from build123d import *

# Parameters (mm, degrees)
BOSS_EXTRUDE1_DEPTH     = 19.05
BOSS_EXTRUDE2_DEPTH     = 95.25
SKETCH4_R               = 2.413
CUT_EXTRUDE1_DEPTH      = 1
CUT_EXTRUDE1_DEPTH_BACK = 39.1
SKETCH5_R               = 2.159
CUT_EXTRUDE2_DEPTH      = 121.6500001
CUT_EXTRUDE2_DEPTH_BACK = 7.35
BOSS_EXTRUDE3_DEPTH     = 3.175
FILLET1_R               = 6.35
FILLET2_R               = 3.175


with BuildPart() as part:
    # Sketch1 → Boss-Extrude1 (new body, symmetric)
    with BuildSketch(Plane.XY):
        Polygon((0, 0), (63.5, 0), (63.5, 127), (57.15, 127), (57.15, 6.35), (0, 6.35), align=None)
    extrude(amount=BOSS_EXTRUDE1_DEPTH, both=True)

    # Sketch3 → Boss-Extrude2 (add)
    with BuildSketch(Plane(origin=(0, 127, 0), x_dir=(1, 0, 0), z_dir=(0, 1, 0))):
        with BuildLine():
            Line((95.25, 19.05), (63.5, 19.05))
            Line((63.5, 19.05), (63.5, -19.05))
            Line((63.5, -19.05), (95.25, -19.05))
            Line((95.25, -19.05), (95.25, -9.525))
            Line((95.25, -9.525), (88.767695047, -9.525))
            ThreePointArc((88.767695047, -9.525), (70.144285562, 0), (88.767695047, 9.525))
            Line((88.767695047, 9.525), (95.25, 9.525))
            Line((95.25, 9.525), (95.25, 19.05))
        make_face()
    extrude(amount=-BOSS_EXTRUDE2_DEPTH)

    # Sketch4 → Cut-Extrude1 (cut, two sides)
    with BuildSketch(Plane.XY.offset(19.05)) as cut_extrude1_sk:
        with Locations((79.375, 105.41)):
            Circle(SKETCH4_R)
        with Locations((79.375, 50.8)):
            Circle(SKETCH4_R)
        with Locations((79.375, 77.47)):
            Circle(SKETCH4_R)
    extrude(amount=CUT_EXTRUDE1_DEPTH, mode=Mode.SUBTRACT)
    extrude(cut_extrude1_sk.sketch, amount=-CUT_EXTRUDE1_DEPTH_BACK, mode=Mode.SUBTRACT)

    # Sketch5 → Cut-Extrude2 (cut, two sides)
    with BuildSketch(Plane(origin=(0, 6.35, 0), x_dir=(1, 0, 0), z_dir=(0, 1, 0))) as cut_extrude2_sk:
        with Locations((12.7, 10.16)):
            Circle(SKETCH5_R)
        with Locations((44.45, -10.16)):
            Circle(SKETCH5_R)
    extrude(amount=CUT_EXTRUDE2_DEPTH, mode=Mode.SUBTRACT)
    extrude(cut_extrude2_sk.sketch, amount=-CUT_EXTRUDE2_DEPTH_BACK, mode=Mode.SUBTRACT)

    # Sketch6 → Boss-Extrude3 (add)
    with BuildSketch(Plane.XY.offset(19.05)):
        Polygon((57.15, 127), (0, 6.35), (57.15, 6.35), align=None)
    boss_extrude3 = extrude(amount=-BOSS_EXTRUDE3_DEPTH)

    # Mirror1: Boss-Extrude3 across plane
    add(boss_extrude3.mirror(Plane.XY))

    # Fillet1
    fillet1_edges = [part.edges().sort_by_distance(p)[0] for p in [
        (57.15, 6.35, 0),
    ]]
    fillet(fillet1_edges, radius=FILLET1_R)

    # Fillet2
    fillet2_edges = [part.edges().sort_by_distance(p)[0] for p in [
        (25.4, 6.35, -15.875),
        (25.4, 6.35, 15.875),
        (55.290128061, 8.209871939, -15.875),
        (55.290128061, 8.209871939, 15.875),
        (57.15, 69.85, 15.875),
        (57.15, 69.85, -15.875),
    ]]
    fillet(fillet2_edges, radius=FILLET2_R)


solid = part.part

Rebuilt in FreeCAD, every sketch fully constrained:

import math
import FreeCAD as App
import Part
import Sketcher
Q = App.Units.Quantity


def edges_at(feature, points):
    """Names of the edges that pass closest to the given points."""
    edges = feature.Shape.Edges
    near = lambda p: min(range(len(edges)), key=lambda i: edges[i].distToShape(Part.Vertex(*p))[0])
    return sorted({f"Edge{near(p) + 1}" for p in points})


def add_polygon(sketch, points):
    """Adds a closed chain of lines whose ends are joined by coincident constraints."""
    first, n = sketch.GeometryCount, len(points)
    for a, b in zip(points, points[1:] + points[:1]):
        sketch.addGeometry(Part.LineSegment(App.Vector(*a, 0), App.Vector(*b, 0)), False)
    for i in range(n):
        sketch.addConstraint(Sketcher.Constraint("Coincident", first + i, 2, first + (i + 1) % n, 1))

doc = App.newDocument("Part")
params = doc.addObject("Spreadsheet::Sheet", "Params")
for row, (alias, value) in enumerate([
    ("sketch1_height", "5 in"),
    ("sketch1_width", "2.5 in"),
    ("sketch1_width2", "0.25 in"),
    ("pad1_length", "1.5 in"),
    ("sketch2_height", "1.5 in"),
    ("sketch2_width", "1.25 in"),
    ("sketch2_height2", "0.375 in"),
    ("pad2_length", "3.75 in"),
    ("sketch3_diameter", "0.19 in"),
    ("sketch4_diameter", "0.17 in"),
    ("sketch5_width", "2.25 in"),
    ("sketch5_height", "4.75 in"),
    ("pad3_length", "0.125 in"),
    ("fillet_radius", "0.25 in"),
    ("fillet2_radius", "0.125 in"),
], start=1):
    params.set(f"A{row}", alias)
    params.set(f"B{row}", "=" + value)
    params.setAlias(f"B{row}", alias)

body = doc.addObject("PartDesign::Body", "Body")

sketch1 = body.newObject("Sketcher::SketchObject", "Sketch")
sketch1.AttachmentSupport = (doc.getObject("XY_Plane"), [""])
sketch1.MapMode = "FlatFace"
add_polygon(sketch1, [(0, 0), (64, 0), (64, 127), (57, 127), (57, 6), (0, 6)])
sketch1.addConstraint(Sketcher.Constraint("Horizontal", 0))
sketch1.addConstraint(Sketcher.Constraint("Vertical", 1))
sketch1.addConstraint(Sketcher.Constraint("Horizontal", 2))
sketch1.addConstraint(Sketcher.Constraint("Vertical", 3))
sketch1.addConstraint(Sketcher.Constraint("Horizontal", 4))
sketch1.addConstraint(Sketcher.Constraint("Vertical", 5))
sketch1.addConstraint(Sketcher.Constraint("Coincident", 5, 2, -1, 1))
sketch1.addConstraint(Sketcher.Constraint("Equal", 2, 5))
sketch1.addConstraint(Sketcher.Constraint("DistanceY", 1, 1, 1, 2, Q("5 in")))
sketch1.addConstraint(Sketcher.Constraint("DistanceX", 0, 1, 0, 2, Q("2.5 in")))
sketch1.addConstraint(Sketcher.Constraint("DistanceX", 2, 2, 2, 1, Q("0.25 in")))
sketch1.setExpression("Constraints[14]", "Params.sketch1_height")
sketch1.setExpression("Constraints[15]", "Params.sketch1_width")
sketch1.setExpression("Constraints[16]", "Params.sketch1_width2")
pad1 = body.newObject("PartDesign::Pad", "Pad")
pad1.Profile = sketch1
pad1.setExpression("Length", "Params.pad1_length")
pad1.Midplane = True

sketch2 = body.newObject("Sketcher::SketchObject", "Sketch001")
sketch2.AttachmentSupport = (doc.getObject("XZ_Plane"), [""])
sketch2.MapMode = "FlatFace"
sketch2.AttachmentOffset = App.Placement(App.Vector(0, 0, -5 * 25.4), App.Rotation())
sketch2.addGeometry(Part.LineSegment(App.Vector(95, -19, 0), App.Vector(64, -19, 0)), False)
sketch2.addGeometry(Part.LineSegment(App.Vector(64, -19, 0), App.Vector(64, 19, 0)), False)
sketch2.addGeometry(Part.LineSegment(App.Vector(64, 19, 0), App.Vector(95, 19, 0)), False)
sketch2.addGeometry(Part.LineSegment(App.Vector(95, 19, 0), App.Vector(95, 10, 0)), False)
sketch2.addGeometry(Part.LineSegment(App.Vector(95, 10, 0), App.Vector(89, 10, 0)), False)
sketch2.addGeometry(Part.ArcOfCircle(Part.Circle(App.Vector(82, 0, 0), App.Vector(0, 0, 1), 12), math.radians(54), math.radians(306)), False)
sketch2.addGeometry(Part.LineSegment(App.Vector(89, -10, 0), App.Vector(95, -10, 0)), False)
sketch2.addGeometry(Part.LineSegment(App.Vector(95, -10, 0), App.Vector(95, -19, 0)), False)
sketch2.addConstraint(Sketcher.Constraint("Coincident", 0, 2, 1, 1))
sketch2.addConstraint(Sketcher.Constraint("Coincident", 1, 2, 2, 1))
sketch2.addConstraint(Sketcher.Constraint("Coincident", 2, 2, 3, 1))
sketch2.addConstraint(Sketcher.Constraint("Coincident", 3, 2, 4, 1))
sketch2.addConstraint(Sketcher.Constraint("Coincident", 4, 2, 5, 1))
sketch2.addConstraint(Sketcher.Constraint("Coincident", 5, 2, 6, 1))
sketch2.addConstraint(Sketcher.Constraint("Coincident", 6, 2, 7, 1))
sketch2.addConstraint(Sketcher.Constraint("Coincident", 7, 2, 0, 1))
sketch2.addConstraint(Sketcher.Constraint("Horizontal", 0))
sketch2.addConstraint(Sketcher.Constraint("Vertical", 1))
sketch2.addConstraint(Sketcher.Constraint("Horizontal", 2))
sketch2.addConstraint(Sketcher.Constraint("Vertical", 3))
sketch2.addConstraint(Sketcher.Constraint("Horizontal", 4))
sketch2.addConstraint(Sketcher.Constraint("Horizontal", 6))
sketch2.addConstraint(Sketcher.Constraint("Vertical", 7))
sketch2.addConstraint(Sketcher.Constraint("Symmetric", 4, 2, 5, 2, -1))
sketch2.addConstraint(Sketcher.Constraint("Symmetric", 2, 2, 7, 2, -1))
sketch2.addConstraint(Sketcher.Constraint("DistanceY", 1, 1, 1, 2, Q("1.5 in")))
sketch2.addConstraint(Sketcher.Constraint("DistanceX", 0, 2, 0, 1, Q("1.25 in")))
sketch2.addConstraint(Sketcher.Constraint("DistanceX", -1, 1, 0, 2, Q("2.5 in")))
sketch2.addConstraint(Sketcher.Constraint("Radius", 5, Q("0.4625 in")))
sketch2.addConstraint(Sketcher.Constraint("DistanceY", 3, 2, 3, 1, Q("0.375 in")))
sketch2.addConstraint(Sketcher.Constraint("DistanceX", 4, 2, 4, 1, Q("6.482305 mm")))
sketch2.setExpression("Constraints[17]", "Params.sketch2_height")
sketch2.setExpression("Constraints[18]", "Params.sketch2_width")
sketch2.setExpression("Constraints[21]", "Params.sketch2_height2")
pad2 = body.newObject("PartDesign::Pad", "Pad001")
pad2.Profile = sketch2
pad2.setExpression("Length", "Params.pad2_length")

sketch3 = body.newObject("Sketcher::SketchObject", "Sketch002")
sketch3.AttachmentSupport = (doc.getObject("XY_Plane"), [""])
sketch3.MapMode = "FlatFace"
sketch3.AttachmentOffset = App.Placement(App.Vector(0, 0, 0.75 * 25.4), App.Rotation())
sketch3.addGeometry(Part.Circle(App.Vector(79.4, 105.4, 0), App.Vector(0, 0, 1), 2.4), False)
sketch3.addGeometry(Part.Circle(App.Vector(79.4, 50.8, 0), App.Vector(0, 0, 1), 2.4), False)
sketch3.addGeometry(Part.Circle(App.Vector(79.4, 77.5, 0), App.Vector(0, 0, 1), 2.4), False)
sketch3.addConstraint(Sketcher.Constraint("Equal", 0, 1))
sketch3.addConstraint(Sketcher.Constraint("Equal", 1, 2))
sketch3.addConstraint(Sketcher.Constraint("Vertical", 0, 3, 1, 3))
sketch3.addConstraint(Sketcher.Constraint("Vertical", 1, 3, 2, 3))
sketch3.addConstraint(Sketcher.Constraint("Diameter", 0, Q("0.19 in")))
sketch3.addConstraint(Sketcher.Constraint("DistanceY", -1, 1, 1, 3, Q("2 in")))
sketch3.addConstraint(Sketcher.Constraint("DistanceY", 2, 3, 0, 3, Q("1.1 in")))
sketch3.addConstraint(Sketcher.Constraint("DistanceY", -1, 1, 0, 3, Q("4.15 in")))
sketch3.addConstraint(Sketcher.Constraint("DistanceX", -1, 1, 0, 3, Q("3.125 in")))
sketch3.setExpression("Constraints[4]", "Params.sketch3_diameter")
pocket1 = body.newObject("PartDesign::Pocket", "Pocket")
pocket1.Profile = sketch3
pocket1.Type = "ThroughAll"
pocket1.Midplane = True

sketch4 = body.newObject("Sketcher::SketchObject", "Sketch003")
sketch4.AttachmentSupport = (doc.getObject("XZ_Plane"), [""])
sketch4.MapMode = "FlatFace"
sketch4.AttachmentOffset = App.Placement(App.Vector(0, 0, -0.25 * 25.4), App.Rotation())
sketch4.addGeometry(Part.Circle(App.Vector(12.7, -10.2, 0), App.Vector(0, 0, 1), 2.2), False)
sketch4.addGeometry(Part.Circle(App.Vector(44.5, 10.2, 0), App.Vector(0, 0, 1), 2.2), False)
sketch4.addConstraint(Sketcher.Constraint("Equal", 0, 1))
sketch4.addConstraint(Sketcher.Constraint("Diameter", 0, Q("0.17 in")))
sketch4.addConstraint(Sketcher.Constraint("DistanceX", -1, 1, 0, 3, Q("0.5 in")))
sketch4.addConstraint(Sketcher.Constraint("DistanceY", 0, 3, -1, 1, Q("0.4 in")))
sketch4.addConstraint(Sketcher.Constraint("DistanceY", -1, 1, 1, 3, Q("0.4 in")))
sketch4.addConstraint(Sketcher.Constraint("DistanceX", -1, 1, 1, 3, Q("1.75 in")))
sketch4.setExpression("Constraints[1]", "Params.sketch4_diameter")
pocket2 = body.newObject("PartDesign::Pocket", "Pocket001")
pocket2.Profile = sketch4
pocket2.Type = "ThroughAll"
pocket2.Midplane = True

sketch5 = body.newObject("Sketcher::SketchObject", "Sketch004")
sketch5.AttachmentSupport = (doc.getObject("XY_Plane"), [""])
sketch5.MapMode = "FlatFace"
sketch5.AttachmentOffset = App.Placement(App.Vector(0, 0, 0.75 * 25.4), App.Rotation())
add_polygon(sketch5, [(57, 127), (0, 6), (57, 6)])
sketch5.addConstraint(Sketcher.Constraint("Horizontal", 1))
sketch5.addConstraint(Sketcher.Constraint("Vertical", 2))
sketch5.addConstraint(Sketcher.Constraint("PointOnObject", 0, 2, -2))
sketch5.addConstraint(Sketcher.Constraint("DistanceY", -1, 1, 2, 2, Q("5 in")))
sketch5.addConstraint(Sketcher.Constraint("DistanceX", 1, 1, 1, 2, Q("2.25 in")))
sketch5.addConstraint(Sketcher.Constraint("DistanceY", 2, 1, 2, 2, Q("4.75 in")))
sketch5.setExpression("Constraints[7]", "Params.sketch5_width")
sketch5.setExpression("Constraints[8]", "Params.sketch5_height")
pad3 = body.newObject("PartDesign::Pad", "Pad002")
pad3.Profile = sketch5
pad3.setExpression("Length", "Params.pad3_length")
pad3.Reversed = True
doc.recompute()

mirrored = body.newObject("PartDesign::Mirrored", "Mirrored")
mirrored.Originals = [pad3]
mirrored.MirrorPlane = (doc.getObject("XY_Plane"), [""])
body.Tip = mirrored
doc.recompute()

fillet = body.newObject("PartDesign::Fillet", "Fillet")
fillet.Base = (mirrored, edges_at(mirrored, [(57.15, 6.35, 0)]))
fillet.setExpression("Radius", "Params.fillet_radius")
doc.recompute()

fillet2 = body.newObject("PartDesign::Fillet", "Fillet001")
fillet2.Base = (fillet, edges_at(fillet, [
    (25.4, 6.35, -15.875),
    (25.4, 6.35, 15.875),
    (55.29, 8.21, -15.875),
    (55.29, 8.21, 15.875),
    (57.15, 69.85, 15.875),
    (57.15, 69.85, -15.875),
]))
fillet2.setExpression("Radius", "Params.fillet2_radius")

doc.recompute()
